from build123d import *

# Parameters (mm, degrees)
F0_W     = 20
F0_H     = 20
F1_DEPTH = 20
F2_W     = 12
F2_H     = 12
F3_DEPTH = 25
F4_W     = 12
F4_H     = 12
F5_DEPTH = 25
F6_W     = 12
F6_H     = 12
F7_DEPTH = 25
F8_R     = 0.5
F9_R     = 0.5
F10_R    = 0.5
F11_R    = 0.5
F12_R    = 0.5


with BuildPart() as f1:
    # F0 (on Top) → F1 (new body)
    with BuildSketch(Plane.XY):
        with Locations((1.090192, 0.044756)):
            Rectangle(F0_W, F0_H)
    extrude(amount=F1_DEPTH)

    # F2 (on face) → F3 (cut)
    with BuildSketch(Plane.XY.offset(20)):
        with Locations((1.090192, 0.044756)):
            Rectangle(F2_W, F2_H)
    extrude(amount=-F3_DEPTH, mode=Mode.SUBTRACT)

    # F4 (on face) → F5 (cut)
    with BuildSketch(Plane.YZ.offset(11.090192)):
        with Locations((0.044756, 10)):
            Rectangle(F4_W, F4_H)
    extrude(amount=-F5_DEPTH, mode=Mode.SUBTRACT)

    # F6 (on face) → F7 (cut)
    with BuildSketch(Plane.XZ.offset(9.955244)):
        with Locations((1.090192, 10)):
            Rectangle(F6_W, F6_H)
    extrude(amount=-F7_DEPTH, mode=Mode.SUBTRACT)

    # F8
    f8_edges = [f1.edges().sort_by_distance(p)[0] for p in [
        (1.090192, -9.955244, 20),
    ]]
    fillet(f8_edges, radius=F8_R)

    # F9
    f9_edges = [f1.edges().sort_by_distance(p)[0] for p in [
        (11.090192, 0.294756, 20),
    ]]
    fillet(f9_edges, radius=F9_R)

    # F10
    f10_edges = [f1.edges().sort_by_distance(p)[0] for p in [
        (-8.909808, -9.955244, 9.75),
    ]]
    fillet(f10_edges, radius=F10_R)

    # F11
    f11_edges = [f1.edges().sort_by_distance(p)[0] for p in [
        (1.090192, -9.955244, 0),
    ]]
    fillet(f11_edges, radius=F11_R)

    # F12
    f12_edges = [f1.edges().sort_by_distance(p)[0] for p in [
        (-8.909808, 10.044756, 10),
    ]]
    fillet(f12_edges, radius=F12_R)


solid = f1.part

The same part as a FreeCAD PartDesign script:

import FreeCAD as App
import Part
import Sketcher
from FreeCAD import Vector


def edges_at(feature, points):
    """Names of the edges that pass closest to the given points."""
    edges = feature.Shape.Edges
    near = lambda p: min(range(len(edges)), key=lambda i: edges[i].distToShape(Part.Vertex(*p))[0])
    return sorted({f"Edge{near(p) + 1}" for p in points})

doc = App.newDocument("Part")
body = doc.addObject("PartDesign::Body", "Body")

# Sketch on XY plane
sketch1 = body.newObject("Sketcher::SketchObject", "Sketch")
sketch1.AttachmentSupport = (doc.getObject("XY_Plane"), [""])
sketch1.MapMode = "FlatFace"
sketch1.addGeometry([
    Part.LineSegment(Vector(-8.909808, 10.044756, 0), Vector(-8.909808, -9.955244, 0)),
    Part.LineSegment(Vector(-8.909808, -9.955244, 0), Vector(11.090192, -9.955244, 0)),
    Part.LineSegment(Vector(11.090192, -9.955244, 0), Vector(11.090192, 10.044756, 0)),
    Part.LineSegment(Vector(11.090192, 10.044756, 0), Vector(-8.909808, 10.044756, 0)),
], False)
sketch1.addConstraint([
    Sketcher.Constraint("Coincident", 0, 2, 1, 1),
    Sketcher.Constraint("Coincident", 1, 2, 2, 1),
    Sketcher.Constraint("Coincident", 2, 2, 3, 1),
    Sketcher.Constraint("Coincident", 3, 2, 0, 1),
    Sketcher.Constraint("Vertical", 0),
    Sketcher.Constraint("Horizontal", 1),
    Sketcher.Constraint("Vertical", 2),
    Sketcher.Constraint("Horizontal", 3),
    Sketcher.Constraint("Equal", 3, 0),
    Sketcher.Constraint("DistanceX", 1, 1, 1, 2, 20.0),
    Sketcher.Constraint("DistanceX", 0, 2, -1, 1, 8.909808),
    Sketcher.Constraint("DistanceY", 0, 2, -1, 1, 9.955244),
])
pad1 = body.newObject("PartDesign::Pad", "Pad")
pad1.Profile = sketch1
pad1.Length = 20

# Sketch on XY plane
sketch2 = body.newObject("Sketcher::SketchObject", "Sketch001")
sketch2.AttachmentSupport = (doc.getObject("XY_Plane"), [""])
sketch2.MapMode = "FlatFace"
sketch2.AttachmentOffset = App.Placement(Vector(0, 0, 20), App.Rotation())
sketch2.addGeometry([
    Part.LineSegment(Vector(-4.909808, 6.044756, 0), Vector(-4.909808, -5.955244, 0)),
    Part.LineSegment(Vector(-4.909808, -5.955244, 0), Vector(7.090192, -5.955244, 0)),
    Part.LineSegment(Vector(7.090192, -5.955244, 0), Vector(7.090192, 6.044756, 0)),
    Part.LineSegment(Vector(7.090192, 6.044756, 0), Vector(-4.909808, 6.044756, 0)),
], False)
sketch2.addConstraint([
    Sketcher.Constraint("Coincident", 0, 2, 1, 1),
    Sketcher.Constraint("Coincident", 1, 2, 2, 1),
    Sketcher.Constraint("Coincident", 2, 2, 3, 1),
    Sketcher.Constraint("Coincident", 3, 2, 0, 1),
    Sketcher.Constraint("Vertical", 0),
    Sketcher.Constraint("Horizontal", 1),
    Sketcher.Constraint("Vertical", 2),
    Sketcher.Constraint("Horizontal", 3),
    Sketcher.Constraint("Equal", 3, 0),
    Sketcher.Constraint("DistanceX", 1, 1, 1, 2, 12.0),
    Sketcher.Constraint("DistanceX", 0, 2, -1, 1, 4.909808),
    Sketcher.Constraint("DistanceY", 0, 2, -1, 1, 5.955244),
])
pocket1 = body.newObject("PartDesign::Pocket", "Pocket")
pocket1.Profile = sketch2
pocket1.Length = 25

# Sketch on YZ plane
sketch3 = body.newObject("Sketcher::SketchObject", "Sketch002")
sketch3.AttachmentSupport = (doc.getObject("YZ_Plane"), [""])
sketch3.MapMode = "FlatFace"
sketch3.AttachmentOffset = App.Placement(Vector(0, 0, 11.090192), App.Rotation())
sketch3.addGeometry([
    Part.LineSegment(Vector(-5.955244, 16, 0), Vector(-5.955244, 4, 0)),
    Part.LineSegment(Vector(-5.955244, 4, 0), Vector(6.044756, 4, 0)),
    Part.LineSegment(Vector(6.044756, 4, 0), Vector(6.044756, 16, 0)),
    Part.LineSegment(Vector(6.044756, 16, 0), Vector(-5.955244, 16, 0)),
], False)
sketch3.addConstraint([
    Sketcher.Constraint("Coincident", 0, 2, 1, 1),
    Sketcher.Constraint("Coincident", 1, 2, 2, 1),
    Sketcher.Constraint("Coincident", 2, 2, 3, 1),
    Sketcher.Constraint("Coincident", 3, 2, 0, 1),
    Sketcher.Constraint("Vertical", 0),
    Sketcher.Constraint("Horizontal", 1),
    Sketcher.Constraint("Vertical", 2),
    Sketcher.Constraint("Horizontal", 3),
    Sketcher.Constraint("Equal", 3, 0),
    Sketcher.Constraint("DistanceX", 1, 1, 1, 2, 12.0),
    Sketcher.Constraint("DistanceY", -1, 1, 0, 2, 4.0),
    Sketcher.Constraint("DistanceX", 0, 2, -1, 1, 5.955244),
])
pocket2 = body.newObject("PartDesign::Pocket", "Pocket001")
pocket2.Profile = sketch3
pocket2.Length = 25

# Sketch on XZ plane
sketch4 = body.newObject("Sketcher::SketchObject", "Sketch003")
sketch4.AttachmentSupport = (doc.getObject("XZ_Plane"), [""])
sketch4.MapMode = "FlatFace"
sketch4.AttachmentOffset = App.Placement(Vector(0, 0, 9.955244), App.Rotation())
sketch4.addGeometry([
    Part.LineSegment(Vector(-4.909808, 16, 0), Vector(-4.909808, 4, 0)),
    Part.LineSegment(Vector(-4.909808, 4, 0), Vector(7.090192, 4, 0)),
    Part.LineSegment(Vector(7.090192, 4, 0), Vector(7.090192, 16, 0)),
    Part.LineSegment(Vector(7.090192, 16, 0), Vector(-4.909808, 16, 0)),
], False)
sketch4.addConstraint([
    Sketcher.Constraint("Coincident", 0, 2, 1, 1),
    Sketcher.Constraint("Coincident", 1, 2, 2, 1),
    Sketcher.Constraint("Coincident", 2, 2, 3, 1),
    Sketcher.Constraint("Coincident", 3, 2, 0, 1),
    Sketcher.Constraint("Vertical", 0),
    Sketcher.Constraint("Horizontal", 1),
    Sketcher.Constraint("Vertical", 2),
    Sketcher.Constraint("Horizontal", 3),
    Sketcher.Constraint("Equal", 3, 0),
    Sketcher.Constraint("DistanceX", 1, 1, 1, 2, 12.0),
    Sketcher.Constraint("DistanceY", -1, 1, 0, 2, 4.0),
    Sketcher.Constraint("DistanceX", 0, 2, -1, 1, 4.909808),
])
pocket3 = body.newObject("PartDesign::Pocket", "Pocket002")
pocket3.Profile = sketch4
pocket3.Length = 25
doc.recompute()

fillet = body.newObject("PartDesign::Fillet", "Fillet")
fillet.Base = (pocket3, edges_at(pocket3, [(1.09, -9.955, 20)]))
fillet.Radius = 0.5
doc.recompute()

fillet2 = body.newObject("PartDesign::Fillet", "Fillet001")
fillet2.Base = (fillet, edges_at(fillet, [(11.09, 0.295, 20)]))
fillet2.Radius = 0.5
doc.recompute()

fillet3 = body.newObject("PartDesign::Fillet", "Fillet002")
fillet3.Base = (fillet2, edges_at(fillet2, [(-8.91, -9.955, 9.75)]))
fillet3.Radius = 0.5
doc.recompute()

fillet4 = body.newObject("PartDesign::Fillet", "Fillet003")
fillet4.Base = (fillet3, edges_at(fillet3, [(1.09, -9.955, 0)]))
fillet4.Radius = 0.5
doc.recompute()

fillet5 = body.newObject("PartDesign::Fillet", "Fillet004")
fillet5.Base = (fillet4, edges_at(fillet4, [(-8.91, 10.045, 10)]))
fillet5.Radius = 0.5

doc.recompute()
